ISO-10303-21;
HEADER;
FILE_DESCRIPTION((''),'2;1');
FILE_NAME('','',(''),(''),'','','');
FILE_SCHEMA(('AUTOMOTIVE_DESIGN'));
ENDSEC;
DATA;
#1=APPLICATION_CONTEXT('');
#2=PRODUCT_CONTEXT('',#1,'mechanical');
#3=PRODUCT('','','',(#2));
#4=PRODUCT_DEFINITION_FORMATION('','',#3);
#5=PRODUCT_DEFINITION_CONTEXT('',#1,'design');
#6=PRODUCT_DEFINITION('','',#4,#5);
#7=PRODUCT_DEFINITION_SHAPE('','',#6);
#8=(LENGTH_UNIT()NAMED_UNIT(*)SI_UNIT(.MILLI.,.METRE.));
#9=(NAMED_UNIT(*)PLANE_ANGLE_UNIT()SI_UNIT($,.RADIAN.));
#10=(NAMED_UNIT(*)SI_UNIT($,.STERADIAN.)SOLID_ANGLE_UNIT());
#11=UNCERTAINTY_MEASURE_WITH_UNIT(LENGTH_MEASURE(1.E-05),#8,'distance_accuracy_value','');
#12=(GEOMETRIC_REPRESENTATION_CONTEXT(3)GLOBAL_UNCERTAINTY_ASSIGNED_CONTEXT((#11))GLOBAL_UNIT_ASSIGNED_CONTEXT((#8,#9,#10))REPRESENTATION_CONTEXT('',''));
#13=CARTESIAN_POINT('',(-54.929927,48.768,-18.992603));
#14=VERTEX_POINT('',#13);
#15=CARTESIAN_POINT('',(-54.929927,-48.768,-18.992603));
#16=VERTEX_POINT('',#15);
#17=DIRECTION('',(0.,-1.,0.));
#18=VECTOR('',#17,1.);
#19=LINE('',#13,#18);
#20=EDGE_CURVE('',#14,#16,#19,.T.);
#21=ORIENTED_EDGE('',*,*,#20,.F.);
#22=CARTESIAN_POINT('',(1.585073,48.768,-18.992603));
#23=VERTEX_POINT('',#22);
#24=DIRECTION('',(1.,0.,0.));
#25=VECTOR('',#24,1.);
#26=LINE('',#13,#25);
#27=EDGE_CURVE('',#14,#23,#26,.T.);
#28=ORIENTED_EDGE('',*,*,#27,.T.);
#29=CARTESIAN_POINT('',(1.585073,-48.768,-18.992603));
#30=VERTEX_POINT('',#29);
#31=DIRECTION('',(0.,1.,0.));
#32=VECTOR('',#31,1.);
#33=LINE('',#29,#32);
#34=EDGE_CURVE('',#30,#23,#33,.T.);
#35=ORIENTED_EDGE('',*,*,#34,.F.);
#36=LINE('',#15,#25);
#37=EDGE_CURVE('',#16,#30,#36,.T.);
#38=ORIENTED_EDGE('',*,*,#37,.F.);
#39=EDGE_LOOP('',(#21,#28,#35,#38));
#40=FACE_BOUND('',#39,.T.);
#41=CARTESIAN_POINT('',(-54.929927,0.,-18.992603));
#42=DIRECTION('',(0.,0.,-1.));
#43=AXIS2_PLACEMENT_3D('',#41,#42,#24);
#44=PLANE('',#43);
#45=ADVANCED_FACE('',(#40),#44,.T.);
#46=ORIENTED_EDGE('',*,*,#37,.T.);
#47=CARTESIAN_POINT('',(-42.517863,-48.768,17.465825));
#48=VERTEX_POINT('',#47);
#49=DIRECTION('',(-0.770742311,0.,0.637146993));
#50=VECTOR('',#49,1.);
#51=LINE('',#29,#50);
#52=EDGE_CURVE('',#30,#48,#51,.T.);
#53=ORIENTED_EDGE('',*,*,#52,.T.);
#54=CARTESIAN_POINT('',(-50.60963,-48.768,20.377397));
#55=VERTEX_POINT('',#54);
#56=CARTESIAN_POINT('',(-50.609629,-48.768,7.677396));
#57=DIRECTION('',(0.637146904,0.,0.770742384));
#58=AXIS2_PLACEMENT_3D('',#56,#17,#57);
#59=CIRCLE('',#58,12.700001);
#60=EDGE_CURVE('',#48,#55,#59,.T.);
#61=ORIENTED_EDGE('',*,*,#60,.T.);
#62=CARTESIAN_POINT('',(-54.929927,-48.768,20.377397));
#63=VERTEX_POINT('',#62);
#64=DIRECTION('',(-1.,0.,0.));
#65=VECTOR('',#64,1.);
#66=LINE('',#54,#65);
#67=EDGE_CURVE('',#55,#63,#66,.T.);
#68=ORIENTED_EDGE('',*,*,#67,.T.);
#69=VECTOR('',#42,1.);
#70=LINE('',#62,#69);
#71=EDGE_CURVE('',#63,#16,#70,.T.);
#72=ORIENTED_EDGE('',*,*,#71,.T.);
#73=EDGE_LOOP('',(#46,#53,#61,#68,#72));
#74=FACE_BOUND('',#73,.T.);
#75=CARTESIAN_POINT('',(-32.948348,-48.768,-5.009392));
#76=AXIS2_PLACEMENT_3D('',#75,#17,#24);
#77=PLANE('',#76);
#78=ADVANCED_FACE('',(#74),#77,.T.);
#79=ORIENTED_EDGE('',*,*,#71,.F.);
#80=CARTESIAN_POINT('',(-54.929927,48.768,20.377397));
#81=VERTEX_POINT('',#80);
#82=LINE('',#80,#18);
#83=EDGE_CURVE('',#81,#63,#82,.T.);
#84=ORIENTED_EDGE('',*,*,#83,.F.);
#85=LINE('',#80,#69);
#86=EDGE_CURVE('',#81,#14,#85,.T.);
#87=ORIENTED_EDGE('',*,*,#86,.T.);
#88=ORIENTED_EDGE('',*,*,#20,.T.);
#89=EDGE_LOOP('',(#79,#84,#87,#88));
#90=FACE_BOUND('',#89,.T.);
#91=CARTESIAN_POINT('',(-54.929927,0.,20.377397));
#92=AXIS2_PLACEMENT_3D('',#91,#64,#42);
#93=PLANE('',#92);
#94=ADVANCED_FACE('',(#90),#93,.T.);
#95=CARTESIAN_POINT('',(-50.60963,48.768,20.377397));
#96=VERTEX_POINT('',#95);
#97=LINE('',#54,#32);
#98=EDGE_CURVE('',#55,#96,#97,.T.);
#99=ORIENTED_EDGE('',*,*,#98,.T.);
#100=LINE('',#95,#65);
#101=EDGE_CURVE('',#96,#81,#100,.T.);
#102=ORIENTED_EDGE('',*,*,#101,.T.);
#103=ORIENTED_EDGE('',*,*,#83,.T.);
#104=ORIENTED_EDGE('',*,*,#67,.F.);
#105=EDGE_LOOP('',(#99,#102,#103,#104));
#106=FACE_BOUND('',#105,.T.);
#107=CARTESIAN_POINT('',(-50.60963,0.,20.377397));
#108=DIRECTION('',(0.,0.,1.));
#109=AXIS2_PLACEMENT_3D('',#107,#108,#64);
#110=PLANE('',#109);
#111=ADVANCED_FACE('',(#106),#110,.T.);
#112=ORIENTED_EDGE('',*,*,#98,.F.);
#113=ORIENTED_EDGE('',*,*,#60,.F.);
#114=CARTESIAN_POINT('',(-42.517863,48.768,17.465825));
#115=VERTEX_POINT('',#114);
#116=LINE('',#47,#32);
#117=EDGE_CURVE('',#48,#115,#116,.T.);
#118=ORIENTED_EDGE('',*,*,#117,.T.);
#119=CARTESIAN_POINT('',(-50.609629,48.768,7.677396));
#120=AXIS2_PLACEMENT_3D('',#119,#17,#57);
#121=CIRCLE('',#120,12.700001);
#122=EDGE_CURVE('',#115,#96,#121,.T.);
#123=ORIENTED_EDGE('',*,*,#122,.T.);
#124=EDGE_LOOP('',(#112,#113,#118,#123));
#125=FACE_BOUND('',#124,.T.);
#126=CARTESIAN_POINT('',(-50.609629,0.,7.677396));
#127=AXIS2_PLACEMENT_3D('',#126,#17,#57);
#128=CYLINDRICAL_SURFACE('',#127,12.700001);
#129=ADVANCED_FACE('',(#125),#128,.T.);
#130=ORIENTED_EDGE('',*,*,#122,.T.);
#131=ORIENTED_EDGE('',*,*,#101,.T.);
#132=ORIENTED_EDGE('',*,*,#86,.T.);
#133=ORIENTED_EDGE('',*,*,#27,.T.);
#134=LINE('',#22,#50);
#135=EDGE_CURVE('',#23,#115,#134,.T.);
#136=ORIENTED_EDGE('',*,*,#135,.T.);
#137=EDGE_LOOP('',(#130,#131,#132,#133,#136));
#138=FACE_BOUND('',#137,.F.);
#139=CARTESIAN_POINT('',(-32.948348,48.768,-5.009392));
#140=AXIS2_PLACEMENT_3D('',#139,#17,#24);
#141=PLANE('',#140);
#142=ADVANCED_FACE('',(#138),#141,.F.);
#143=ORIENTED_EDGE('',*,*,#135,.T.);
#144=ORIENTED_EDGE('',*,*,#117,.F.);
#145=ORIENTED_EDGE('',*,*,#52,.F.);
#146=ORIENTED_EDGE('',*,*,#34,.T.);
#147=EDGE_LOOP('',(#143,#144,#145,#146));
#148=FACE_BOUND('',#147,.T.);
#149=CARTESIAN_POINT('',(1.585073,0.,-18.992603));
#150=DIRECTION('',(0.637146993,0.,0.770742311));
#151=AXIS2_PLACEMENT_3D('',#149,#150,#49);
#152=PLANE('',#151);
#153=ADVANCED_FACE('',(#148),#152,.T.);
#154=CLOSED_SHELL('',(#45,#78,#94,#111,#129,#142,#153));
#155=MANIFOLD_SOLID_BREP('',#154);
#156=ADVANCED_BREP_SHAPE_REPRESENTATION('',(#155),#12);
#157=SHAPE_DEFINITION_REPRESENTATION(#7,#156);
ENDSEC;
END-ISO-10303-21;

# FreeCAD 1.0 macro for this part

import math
import FreeCAD as App
import Part
import Sketcher
from FreeCAD import Vector
Q = App.Units.Quantity

doc = App.newDocument("Part")
body = doc.addObject("PartDesign::Body", "Body")

sketch1 = doc.addObject("Sketcher::SketchObject", "Sketch")
body.addObject(sketch1)
sketch1.AttachmentSupport = (doc.XZ_Plane, [""])
sketch1.MapMode = "FlatFace"
sketch1.addGeometry(Part.LineSegment(Vector(-50.60963, 20.377397, 0), Vector(-54.929927, 20.377397, 0)), False)
sketch1.addGeometry(Part.LineSegment(Vector(-54.929927, 20.377397, 0), Vector(-54.929927, -18.992603, 0)), False)
sketch1.addGeometry(Part.LineSegment(Vector(-54.929927, -18.992603, 0), Vector(1.585073, -18.992603, 0)), False)
sketch1.addGeometry(Part.LineSegment(Vector(1.585073, -18.992603, 0), Vector(-42.517863, 17.465825, 0)), False)
sketch1.addGeometry(Part.ArcOfCircle(Part.Circle(Vector(-50.609629, 7.677396, 0), Vector(0, 0, 1), 12.700001), math.radians(50.420601), math.radians(90.000002)), False)
sketch1.addConstraint(Sketcher.Constraint("Coincident", 0, 2, 1, 1))
sketch1.addConstraint(Sketcher.Constraint("Coincident", 1, 2, 2, 1))
sketch1.addConstraint(Sketcher.Constraint("Coincident", 2, 2, 3, 1))
sketch1.addConstraint(Sketcher.Constraint("Tangent", 3, 2, 4, 1))
sketch1.addConstraint(Sketcher.Constraint("Tangent", 4, 2, 0, 1))
sketch1.addConstraint(Sketcher.Constraint("Horizontal", 0))
sketch1.addConstraint(Sketcher.Constraint("Vertical", 1))
sketch1.addConstraint(Sketcher.Constraint("Horizontal", 2))
sketch1.addConstraint(Sketcher.Constraint("Radius", 4, Q("0.5 in")))
sketch1.addConstraint(Sketcher.Constraint("DistanceY", 1, 2, 1, 1, Q("1.55 in")))
sketch1.addConstraint(Sketcher.Constraint("DistanceX", 2, 1, 2, 2, Q("2.225 in")))
sketch1.addConstraint(Sketcher.Constraint("DistanceX", 0, 2, 0, 1, 4.320297))
sketch1.addConstraint(Sketcher.Constraint("DistanceX", 4, 3, -1, 1, 50.609629))
sketch1.addConstraint(Sketcher.Constraint("DistanceY", -1, 1, 4, 3, 7.677396))
pad1 = doc.addObject("PartDesign::Pad", "Pad")
body.addObject(pad1)
pad1.Profile = sketch1
pad1.Length = Q("3.84 in")
pad1.Midplane = True

doc.recompute()
